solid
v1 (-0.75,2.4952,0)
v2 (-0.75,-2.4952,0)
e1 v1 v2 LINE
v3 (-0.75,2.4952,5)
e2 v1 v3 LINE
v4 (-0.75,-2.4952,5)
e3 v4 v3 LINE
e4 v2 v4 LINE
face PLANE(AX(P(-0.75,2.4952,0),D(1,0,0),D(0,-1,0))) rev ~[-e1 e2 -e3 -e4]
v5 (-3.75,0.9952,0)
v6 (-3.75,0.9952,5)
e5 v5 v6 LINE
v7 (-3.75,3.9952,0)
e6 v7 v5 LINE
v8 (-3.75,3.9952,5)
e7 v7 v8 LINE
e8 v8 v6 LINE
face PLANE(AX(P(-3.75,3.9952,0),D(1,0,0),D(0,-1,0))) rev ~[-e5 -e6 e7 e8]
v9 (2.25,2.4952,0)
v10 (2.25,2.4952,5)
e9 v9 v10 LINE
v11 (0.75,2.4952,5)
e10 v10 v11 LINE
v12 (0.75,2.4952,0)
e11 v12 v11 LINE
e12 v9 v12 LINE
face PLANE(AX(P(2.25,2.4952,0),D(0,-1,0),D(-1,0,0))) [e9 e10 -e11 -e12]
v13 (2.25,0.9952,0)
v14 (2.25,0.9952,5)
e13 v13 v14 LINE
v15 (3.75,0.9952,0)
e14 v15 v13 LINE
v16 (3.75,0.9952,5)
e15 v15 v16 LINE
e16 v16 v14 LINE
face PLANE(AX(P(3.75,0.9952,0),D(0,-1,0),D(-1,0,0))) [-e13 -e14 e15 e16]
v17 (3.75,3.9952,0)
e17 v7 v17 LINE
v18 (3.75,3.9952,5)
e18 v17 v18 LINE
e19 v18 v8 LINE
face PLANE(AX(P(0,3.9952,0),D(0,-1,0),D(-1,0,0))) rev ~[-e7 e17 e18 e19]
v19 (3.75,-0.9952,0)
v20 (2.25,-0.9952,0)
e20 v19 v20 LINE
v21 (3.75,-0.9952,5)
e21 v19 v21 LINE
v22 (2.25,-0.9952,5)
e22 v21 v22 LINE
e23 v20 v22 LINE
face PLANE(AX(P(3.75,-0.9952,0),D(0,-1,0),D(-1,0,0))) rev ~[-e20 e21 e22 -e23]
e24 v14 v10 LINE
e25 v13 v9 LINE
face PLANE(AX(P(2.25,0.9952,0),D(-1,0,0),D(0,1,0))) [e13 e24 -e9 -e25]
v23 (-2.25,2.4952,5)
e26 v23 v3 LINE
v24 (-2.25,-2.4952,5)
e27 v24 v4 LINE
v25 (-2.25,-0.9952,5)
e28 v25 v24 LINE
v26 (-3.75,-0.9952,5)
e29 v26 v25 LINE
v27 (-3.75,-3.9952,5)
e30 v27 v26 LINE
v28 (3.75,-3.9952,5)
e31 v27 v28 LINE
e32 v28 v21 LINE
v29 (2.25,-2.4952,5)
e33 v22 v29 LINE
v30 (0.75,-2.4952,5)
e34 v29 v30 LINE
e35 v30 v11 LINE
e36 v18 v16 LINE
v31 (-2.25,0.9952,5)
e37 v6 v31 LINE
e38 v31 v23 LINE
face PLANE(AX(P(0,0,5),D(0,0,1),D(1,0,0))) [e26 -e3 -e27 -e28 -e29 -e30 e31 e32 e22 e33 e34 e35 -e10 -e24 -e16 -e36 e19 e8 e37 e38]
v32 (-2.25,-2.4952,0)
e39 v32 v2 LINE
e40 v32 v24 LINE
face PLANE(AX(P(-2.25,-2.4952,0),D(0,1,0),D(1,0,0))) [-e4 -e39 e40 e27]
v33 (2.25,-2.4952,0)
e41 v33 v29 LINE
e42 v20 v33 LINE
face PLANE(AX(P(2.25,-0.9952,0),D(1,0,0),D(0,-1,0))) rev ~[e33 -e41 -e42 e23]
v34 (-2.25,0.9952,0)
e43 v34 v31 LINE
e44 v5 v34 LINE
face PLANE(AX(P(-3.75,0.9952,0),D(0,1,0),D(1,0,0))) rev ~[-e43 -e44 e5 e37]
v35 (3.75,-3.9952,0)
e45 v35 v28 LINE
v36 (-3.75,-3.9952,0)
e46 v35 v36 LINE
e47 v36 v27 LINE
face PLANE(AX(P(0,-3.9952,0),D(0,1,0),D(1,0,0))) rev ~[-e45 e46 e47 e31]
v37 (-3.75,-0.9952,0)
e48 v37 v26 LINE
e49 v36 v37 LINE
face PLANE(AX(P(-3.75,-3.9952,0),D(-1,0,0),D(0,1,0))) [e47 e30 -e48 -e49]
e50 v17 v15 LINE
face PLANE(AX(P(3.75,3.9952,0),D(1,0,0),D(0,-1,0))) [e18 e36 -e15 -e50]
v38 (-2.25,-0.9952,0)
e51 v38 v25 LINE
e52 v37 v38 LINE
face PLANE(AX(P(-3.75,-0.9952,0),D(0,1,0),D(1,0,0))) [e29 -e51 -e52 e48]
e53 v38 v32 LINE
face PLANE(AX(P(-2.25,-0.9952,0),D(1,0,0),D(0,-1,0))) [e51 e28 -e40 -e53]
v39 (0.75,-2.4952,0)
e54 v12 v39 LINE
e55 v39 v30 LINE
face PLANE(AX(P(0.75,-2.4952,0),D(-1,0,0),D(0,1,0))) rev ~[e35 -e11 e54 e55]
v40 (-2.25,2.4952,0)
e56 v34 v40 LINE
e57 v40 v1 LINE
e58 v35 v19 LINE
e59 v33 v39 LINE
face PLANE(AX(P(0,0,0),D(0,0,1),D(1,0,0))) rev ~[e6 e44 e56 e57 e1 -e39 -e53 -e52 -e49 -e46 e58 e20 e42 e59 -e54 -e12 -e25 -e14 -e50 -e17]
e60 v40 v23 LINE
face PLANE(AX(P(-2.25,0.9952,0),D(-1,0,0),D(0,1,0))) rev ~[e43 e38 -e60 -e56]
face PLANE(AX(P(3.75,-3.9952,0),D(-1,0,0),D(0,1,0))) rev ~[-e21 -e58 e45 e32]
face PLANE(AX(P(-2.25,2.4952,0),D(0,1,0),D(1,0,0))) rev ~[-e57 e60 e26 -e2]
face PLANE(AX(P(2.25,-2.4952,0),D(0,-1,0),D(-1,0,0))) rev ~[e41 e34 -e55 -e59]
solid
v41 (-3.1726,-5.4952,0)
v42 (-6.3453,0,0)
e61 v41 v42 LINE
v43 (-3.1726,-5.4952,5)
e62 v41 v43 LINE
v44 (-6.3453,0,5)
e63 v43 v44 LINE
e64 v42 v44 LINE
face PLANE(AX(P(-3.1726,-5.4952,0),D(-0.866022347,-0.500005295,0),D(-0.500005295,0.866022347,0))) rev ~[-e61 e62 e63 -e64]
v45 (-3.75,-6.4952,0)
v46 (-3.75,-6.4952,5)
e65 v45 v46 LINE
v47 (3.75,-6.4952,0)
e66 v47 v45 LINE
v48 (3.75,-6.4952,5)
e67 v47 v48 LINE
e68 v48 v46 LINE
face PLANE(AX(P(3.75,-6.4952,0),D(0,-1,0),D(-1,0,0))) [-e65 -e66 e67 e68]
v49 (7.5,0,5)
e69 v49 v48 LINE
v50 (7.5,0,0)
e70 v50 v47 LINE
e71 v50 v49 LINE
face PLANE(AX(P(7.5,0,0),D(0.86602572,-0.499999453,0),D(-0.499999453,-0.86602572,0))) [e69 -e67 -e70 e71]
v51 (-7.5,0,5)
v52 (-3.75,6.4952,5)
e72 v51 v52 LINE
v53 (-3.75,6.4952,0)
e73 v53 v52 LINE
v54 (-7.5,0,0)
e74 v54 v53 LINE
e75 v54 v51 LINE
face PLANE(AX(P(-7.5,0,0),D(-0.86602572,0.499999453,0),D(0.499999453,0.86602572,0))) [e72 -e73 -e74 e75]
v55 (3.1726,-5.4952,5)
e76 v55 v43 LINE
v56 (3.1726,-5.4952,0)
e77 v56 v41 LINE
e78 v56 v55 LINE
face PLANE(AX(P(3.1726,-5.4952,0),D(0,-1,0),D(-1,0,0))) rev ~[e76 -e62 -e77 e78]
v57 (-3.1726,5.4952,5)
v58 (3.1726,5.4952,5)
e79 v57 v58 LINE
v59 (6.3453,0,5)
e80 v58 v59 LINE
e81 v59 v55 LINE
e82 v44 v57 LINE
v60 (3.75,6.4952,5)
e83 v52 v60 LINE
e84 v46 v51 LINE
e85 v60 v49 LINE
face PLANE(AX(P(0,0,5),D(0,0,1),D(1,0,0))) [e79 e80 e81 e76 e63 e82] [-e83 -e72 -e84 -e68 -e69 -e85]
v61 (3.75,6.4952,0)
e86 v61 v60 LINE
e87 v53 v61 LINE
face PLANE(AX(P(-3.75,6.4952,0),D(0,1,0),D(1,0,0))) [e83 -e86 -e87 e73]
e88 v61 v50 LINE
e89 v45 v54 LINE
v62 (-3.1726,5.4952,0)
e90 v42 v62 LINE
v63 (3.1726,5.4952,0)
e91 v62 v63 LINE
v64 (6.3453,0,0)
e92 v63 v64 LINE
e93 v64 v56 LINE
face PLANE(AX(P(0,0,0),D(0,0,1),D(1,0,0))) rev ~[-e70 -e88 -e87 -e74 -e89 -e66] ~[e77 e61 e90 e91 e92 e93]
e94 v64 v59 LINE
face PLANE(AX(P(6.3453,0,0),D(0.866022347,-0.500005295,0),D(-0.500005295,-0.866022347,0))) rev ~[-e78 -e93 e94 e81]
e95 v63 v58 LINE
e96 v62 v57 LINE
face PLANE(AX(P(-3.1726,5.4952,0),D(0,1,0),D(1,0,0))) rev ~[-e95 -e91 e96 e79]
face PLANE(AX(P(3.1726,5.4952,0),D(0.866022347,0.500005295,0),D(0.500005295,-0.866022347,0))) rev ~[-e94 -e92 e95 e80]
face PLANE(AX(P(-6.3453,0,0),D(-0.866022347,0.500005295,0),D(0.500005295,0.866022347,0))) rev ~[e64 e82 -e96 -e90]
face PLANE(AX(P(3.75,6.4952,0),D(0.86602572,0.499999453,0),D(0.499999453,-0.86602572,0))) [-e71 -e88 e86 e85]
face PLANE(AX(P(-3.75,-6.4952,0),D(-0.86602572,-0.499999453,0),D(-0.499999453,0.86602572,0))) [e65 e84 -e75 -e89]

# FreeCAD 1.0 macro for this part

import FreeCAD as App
import Part
import Sketcher

V = App.Vector
Q = App.Units.Quantity

doc = App.newDocument("Part")
body = doc.addObject("PartDesign::Body", "Body")
body.AllowCompound = True

# Sketch on XY plane
sketch1 = body.newObject("Sketcher::SketchObject", "Sketch")
sketch1.AttachmentSupport = (doc.getObject("XY_Plane"), [""])
sketch1.MapMode = "FlatFace"
sketch1.addGeometry([
    Part.LineSegment(V(3.8, -6.5, 0), V(7.5, 0, 0)),  # 0
    Part.LineSegment(V(7.5, 0, 0), V(3.8, 6.5, 0)),  # 1
    Part.LineSegment(V(3.8, 6.5, 0), V(-3.8, 6.5, 0)),  # 2
    Part.LineSegment(V(-3.8, 6.5, 0), V(-7.5, 0, 0)),  # 3
    Part.LineSegment(V(-7.5, 0, 0), V(-3.8, -6.5, 0)),  # 4
    Part.LineSegment(V(-3.8, -6.5, 0), V(3.8, -6.5, 0)),  # 5
    Part.LineSegment(V(-6.3, 0, 0), V(-3.2, 5.5, 0)),  # 6
    Part.LineSegment(V(-3.2, 5.5, 0), V(3.2, 5.5, 0)),  # 7
    Part.LineSegment(V(3.2, 5.5, 0), V(6.3, 0, 0)),  # 8
    Part.LineSegment(V(6.3, 0, 0), V(3.2, -5.5, 0)),  # 9
    Part.LineSegment(V(3.2, -5.5, 0), V(-3.2, -5.5, 0)),  # 10
    Part.LineSegment(V(-3.2, -5.5, 0), V(-6.3, 0, 0)),  # 11
    Part.LineSegment(V(-0.8, 2.5, 0), V(-0.8, -2.5, 0)),  # 12
    Part.LineSegment(V(-0.8, -2.5, 0), V(-2.2, -2.5, 0)),  # 13
    Part.LineSegment(V(-2.2, -2.5, 0), V(-2.2, -1, 0)),  # 14
    Part.LineSegment(V(-2.2, -1, 0), V(-3.8, -1, 0)),  # 15
    Part.LineSegment(V(-3.8, -1, 0), V(-3.8, -4, 0)),  # 16
    Part.LineSegment(V(-3.8, -4, 0), V(3.8, -4, 0)),  # 17
    Part.LineSegment(V(3.8, -4, 0), V(3.8, -1, 0)),  # 18
    Part.LineSegment(V(3.8, -1, 0), V(2.2, -1, 0)),  # 19
    Part.LineSegment(V(2.2, -1, 0), V(2.2, -2.5, 0)),  # 20
    Part.LineSegment(V(2.2, -2.5, 0), V(0.8, -2.5, 0)),  # 21
    Part.LineSegment(V(0.8, -2.5, 0), V(0.8, 2.5, 0)),  # 22
    Part.LineSegment(V(0.8, 2.5, 0), V(2.2, 2.5, 0)),  # 23
    Part.LineSegment(V(2.2, 2.5, 0), V(2.2, 1, 0)),  # 24
    Part.LineSegment(V(2.2, 1, 0), V(3.8, 1, 0)),  # 25
    Part.LineSegment(V(3.8, 1, 0), V(3.8, 4, 0)),  # 26
    Part.LineSegment(V(3.8, 4, 0), V(-3.8, 4, 0)),  # 27
    Part.LineSegment(V(-3.8, 4, 0), V(-3.8, 1, 0)),  # 28
    Part.LineSegment(V(-3.8, 1, 0), V(-2.2, 1, 0)),  # 29
    Part.LineSegment(V(-2.2, 1, 0), V(-2.2, 2.5, 0)),  # 30
    Part.LineSegment(V(-2.2, 2.5, 0), V(-0.8, 2.5, 0)),  # 31
], False)
sketch1.addConstraint([
    Sketcher.Constraint("Coincident", 0, 2, 1, 1),
    Sketcher.Constraint("Coincident", 1, 2, 2, 1),
    Sketcher.Constraint("Coincident", 2, 2, 3, 1),
    Sketcher.Constraint("Coincident", 3, 2, 4, 1),
    Sketcher.Constraint("Coincident", 4, 2, 5, 1),
    Sketcher.Constraint("Coincident", 5, 2, 0, 1),
    Sketcher.Constraint("Coincident", 6, 2, 7, 1),
    Sketcher.Constraint("Coincident", 7, 2, 8, 1),
    Sketcher.Constraint("Coincident", 8, 2, 9, 1),
    Sketcher.Constraint("Coincident", 9, 2, 10, 1),
    Sketcher.Constraint("Coincident", 10, 2, 11, 1),
    Sketcher.Constraint("Coincident", 11, 2, 6, 1),
    Sketcher.Constraint("Coincident", 12, 2, 13, 1),
    Sketcher.Constraint("Coincident", 13, 2, 14, 1),
    Sketcher.Constraint("Coincident", 14, 2, 15, 1),
    Sketcher.Constraint("Coincident", 15, 2, 16, 1),
    Sketcher.Constraint("Coincident", 16, 2, 17, 1),
    Sketcher.Constraint("Coincident", 17, 2, 18, 1),
    Sketcher.Constraint("Coincident", 18, 2, 19, 1),
    Sketcher.Constraint("Coincident", 19, 2, 20, 1),
    Sketcher.Constraint("Coincident", 20, 2, 21, 1),
    Sketcher.Constraint("Coincident", 21, 2, 22, 1),
    Sketcher.Constraint("Coincident", 22, 2, 23, 1),
    Sketcher.Constraint("Coincident", 23, 2, 24, 1),
    Sketcher.Constraint("Coincident", 24, 2, 25, 1),
    Sketcher.Constraint("Coincident", 25, 2, 26, 1),
    Sketcher.Constraint("Coincident", 26, 2, 27, 1),
    Sketcher.Constraint("Coincident", 27, 2, 28, 1),
    Sketcher.Constraint("Coincident", 28, 2, 29, 1),
    Sketcher.Constraint("Coincident", 29, 2, 30, 1),
    Sketcher.Constraint("Coincident", 30, 2, 31, 1),
    Sketcher.Constraint("Coincident", 31, 2, 12, 1),
    Sketcher.Constraint("Horizontal", 2),
    Sketcher.Constraint("Horizontal", 5),
    Sketcher.Constraint("Horizontal", 7),
    Sketcher.Constraint("Horizontal", 10),
    Sketcher.Constraint("Vertical", 12),
    Sketcher.Constraint("Horizontal", 13),
    Sketcher.Constraint("Vertical", 14),
    Sketcher.Constraint("Horizontal", 15),
    Sketcher.Constraint("Vertical", 16),
    Sketcher.Constraint("Horizontal", 17),
    Sketcher.Constraint("Vertical", 18),
    Sketcher.Constraint("Horizontal", 19),
    Sketcher.Constraint("Vertical", 20),
    Sketcher.Constraint("Horizontal", 21),
    Sketcher.Constraint("Vertical", 22),
    Sketcher.Constraint("Horizontal", 23),
    Sketcher.Constraint("Vertical", 24),
    Sketcher.Constraint("Horizontal", 25),
    Sketcher.Constraint("Vertical", 26),
    Sketcher.Constraint("Horizontal", 27),
    Sketcher.Constraint("Vertical", 28),
    Sketcher.Constraint("Horizontal", 29),
    Sketcher.Constraint("Vertical", 30),
    Sketcher.Constraint("Horizontal", 31),
    Sketcher.Constraint("Symmetric", 0, 2, 3, 2, -1, 1),
    Sketcher.Constraint("Symmetric", 1, 2, 4, 2, -1, 1),
    Sketcher.Constraint("Symmetric", 6, 2, 9, 2, -1, 1),
    Sketcher.Constraint("Symmetric", 8, 2, 11, 2, -1, 1),
    Sketcher.Constraint("Symmetric", 12, 2, 22, 2, -1, 1),
    Sketcher.Constraint("Symmetric", 14, 2, 24, 2, -1, 1),
    Sketcher.Constraint("Symmetric", 16, 2, 26, 2, -1, 1),
    Sketcher.Constraint("Symmetric", 18, 2, 28, 2, -1, 1),
    Sketcher.Constraint("Symmetric", 20, 2, 30, 2, -1, 1),
    Sketcher.Constraint("Symmetric", 15, 2, 18, 2, -2),
    Sketcher.Constraint("Symmetric", 13, 2, 20, 2, -2),
    Sketcher.Constraint("PointOnObject", 0, 2, -1),
    Sketcher.Constraint("PointOnObject", 8, 2, -1),
    Sketcher.Constraint("Parallel", 0, 3),
    Sketcher.Constraint("Parallel", 3, 6),
    Sketcher.Constraint("Parallel", 4, 8),
    Sketcher.Constraint("Parallel", 8, 11),
    Sketcher.Constraint("Vertical", 2, 2, 4, 2),
    Sketcher.Constraint("Vertical", 4, 2, 15, 2),
    Sketcher.Constraint("Equal", 13, 15),
    Sketcher.Constraint("Equal", 31, 14),
    Sketcher.Constraint("DistanceX", 13, 2, 13, 1, 1.5),
    Sketcher.Constraint("DistanceX", 3, 2, 0, 2, 15.0),
    Sketcher.Constraint("DistanceY", 6, 2, 2, 2, 1.0),
    Sketcher.Constraint("DistanceY", 10, 2, 16, 2, 1.5),
    Sketcher.Constraint("DistanceY", 16, 2, 13, 2, 1.5),
    Sketcher.Constraint("DistanceX", 12, 2, 21, 2, 1.5),
    Sketcher.Constraint("Angle", 0, Q("60 deg")),
    Sketcher.Constraint("DistanceX", 7, 1, 7, 2, 6.3452),
])
pad1 = body.newObject("PartDesign::Pad", "Pad")
pad1.Profile = sketch1
pad1.Length = 5

doc.recompute()
